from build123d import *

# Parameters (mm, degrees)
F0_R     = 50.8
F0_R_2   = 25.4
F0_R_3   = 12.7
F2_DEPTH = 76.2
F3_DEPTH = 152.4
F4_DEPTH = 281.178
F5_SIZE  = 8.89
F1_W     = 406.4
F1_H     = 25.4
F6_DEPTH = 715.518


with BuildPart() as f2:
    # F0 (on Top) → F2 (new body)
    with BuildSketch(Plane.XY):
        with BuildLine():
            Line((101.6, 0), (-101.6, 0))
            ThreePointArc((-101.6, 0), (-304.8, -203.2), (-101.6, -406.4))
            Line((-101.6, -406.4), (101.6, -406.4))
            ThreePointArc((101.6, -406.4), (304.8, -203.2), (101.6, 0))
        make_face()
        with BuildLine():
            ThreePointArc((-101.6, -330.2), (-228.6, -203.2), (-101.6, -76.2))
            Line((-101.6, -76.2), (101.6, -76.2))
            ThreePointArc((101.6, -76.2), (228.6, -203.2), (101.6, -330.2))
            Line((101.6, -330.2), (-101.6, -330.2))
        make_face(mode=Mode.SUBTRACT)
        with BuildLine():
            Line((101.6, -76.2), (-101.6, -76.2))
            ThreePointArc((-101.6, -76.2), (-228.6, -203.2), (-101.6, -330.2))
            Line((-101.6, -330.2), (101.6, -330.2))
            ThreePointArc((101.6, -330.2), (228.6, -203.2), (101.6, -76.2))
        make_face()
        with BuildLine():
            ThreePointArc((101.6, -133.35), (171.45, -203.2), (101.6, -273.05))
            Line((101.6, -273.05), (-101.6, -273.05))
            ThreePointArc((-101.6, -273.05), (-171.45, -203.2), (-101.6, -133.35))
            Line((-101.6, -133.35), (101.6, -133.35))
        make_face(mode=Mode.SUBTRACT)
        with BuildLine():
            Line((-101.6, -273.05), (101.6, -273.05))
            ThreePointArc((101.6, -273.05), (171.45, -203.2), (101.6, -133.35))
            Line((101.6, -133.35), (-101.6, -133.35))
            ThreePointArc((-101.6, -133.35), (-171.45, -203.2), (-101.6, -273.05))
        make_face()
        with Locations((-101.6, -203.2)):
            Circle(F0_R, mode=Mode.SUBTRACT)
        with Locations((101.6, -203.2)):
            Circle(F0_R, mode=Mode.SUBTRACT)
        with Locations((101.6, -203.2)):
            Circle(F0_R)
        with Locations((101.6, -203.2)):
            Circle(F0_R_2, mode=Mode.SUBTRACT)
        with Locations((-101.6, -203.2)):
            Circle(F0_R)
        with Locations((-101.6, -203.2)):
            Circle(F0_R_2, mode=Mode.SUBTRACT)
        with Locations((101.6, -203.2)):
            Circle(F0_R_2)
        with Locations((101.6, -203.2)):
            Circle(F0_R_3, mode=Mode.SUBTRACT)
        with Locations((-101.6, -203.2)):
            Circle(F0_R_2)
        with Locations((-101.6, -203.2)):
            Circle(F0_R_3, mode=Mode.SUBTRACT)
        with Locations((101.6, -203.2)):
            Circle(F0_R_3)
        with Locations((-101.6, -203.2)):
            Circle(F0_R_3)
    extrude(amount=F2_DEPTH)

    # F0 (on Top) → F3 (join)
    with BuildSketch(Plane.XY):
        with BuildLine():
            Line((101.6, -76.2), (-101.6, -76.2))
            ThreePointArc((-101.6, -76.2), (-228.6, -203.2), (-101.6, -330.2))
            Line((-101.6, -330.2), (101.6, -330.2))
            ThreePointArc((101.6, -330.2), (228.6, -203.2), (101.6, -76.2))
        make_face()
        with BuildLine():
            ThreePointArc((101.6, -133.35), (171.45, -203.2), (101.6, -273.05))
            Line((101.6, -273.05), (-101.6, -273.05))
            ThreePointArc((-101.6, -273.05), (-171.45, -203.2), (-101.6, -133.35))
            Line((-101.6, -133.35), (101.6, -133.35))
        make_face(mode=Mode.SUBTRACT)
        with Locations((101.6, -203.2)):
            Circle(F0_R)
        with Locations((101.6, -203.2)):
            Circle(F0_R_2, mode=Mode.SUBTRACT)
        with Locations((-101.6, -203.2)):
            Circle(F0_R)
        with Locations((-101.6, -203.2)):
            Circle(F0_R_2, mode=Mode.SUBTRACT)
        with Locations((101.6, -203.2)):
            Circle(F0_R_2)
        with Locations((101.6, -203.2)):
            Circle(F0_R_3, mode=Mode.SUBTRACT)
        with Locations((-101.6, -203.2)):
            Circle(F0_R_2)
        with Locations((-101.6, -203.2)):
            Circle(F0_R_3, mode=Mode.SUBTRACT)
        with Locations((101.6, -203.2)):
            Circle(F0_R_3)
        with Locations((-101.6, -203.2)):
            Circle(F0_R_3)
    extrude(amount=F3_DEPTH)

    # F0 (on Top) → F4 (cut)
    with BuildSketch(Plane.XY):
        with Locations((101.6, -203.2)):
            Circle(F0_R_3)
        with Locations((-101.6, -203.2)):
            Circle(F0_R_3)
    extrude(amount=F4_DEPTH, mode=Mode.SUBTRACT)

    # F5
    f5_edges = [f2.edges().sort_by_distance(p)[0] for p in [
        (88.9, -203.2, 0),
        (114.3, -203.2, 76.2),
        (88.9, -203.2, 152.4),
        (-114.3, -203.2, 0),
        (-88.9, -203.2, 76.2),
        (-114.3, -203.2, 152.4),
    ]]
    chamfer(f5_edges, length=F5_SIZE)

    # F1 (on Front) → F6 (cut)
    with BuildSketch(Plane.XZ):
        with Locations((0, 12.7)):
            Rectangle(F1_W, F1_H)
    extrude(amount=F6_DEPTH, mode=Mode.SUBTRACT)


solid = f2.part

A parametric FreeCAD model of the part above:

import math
import FreeCAD as App
import Part
import Sketcher

V = App.Vector
Q = App.Units.Quantity


def edges_at(feature, points):
    """Names of the edges that pass closest to the given points."""
    edges = feature.Shape.Edges
    near = lambda p: min(range(len(edges)), key=lambda i: edges[i].distToShape(Part.Vertex(*p))[0])
    return sorted({f"Edge{near(p) + 1}" for p in points})


def add_polygon(sketch, points):
    """Adds a closed chain of lines whose ends are joined by coincident constraints."""
    first, n = sketch.GeometryCount, len(points)
    for a, b in zip(points, points[1:] + points[:1]):
        sketch.addGeometry(Part.LineSegment(App.Vector(*a, 0), App.Vector(*b, 0)), False)
    for i in range(n):
        sketch.addConstraint(Sketcher.Constraint("Coincident", first + i, 2, first + (i + 1) % n, 1))

doc = App.newDocument("Part")
params = doc.addObject("Spreadsheet::Sheet", "Params")
for row, (alias, value) in enumerate([
    ("sketch1_radius", "8 in"),
    ("sketch1_width", "8 in"),
    ("pad1_length", "3 in"),
    ("sketch2_diameter", "4 in"),
    ("sketch2_radius", "5 in"),
    ("sketch2_width", "8 in"),
    ("sketch2_radius2", "2.75 in"),
    ("pad2_length", "6 in"),
    ("sketch3_diameter", "1 in"),
    ("pocket1_length", "11.07 in"),
    ("chamfer_size", "0.35 in"),
    ("sketch4_width", "16 in"),
    ("sketch4_height", "1 in"),
    ("pocket2_length", "28.17 in"),
], start=1):
    params.set(f"A{row}", alias)
    params.set(f"B{row}", "=" + value)
    params.setAlias(f"B{row}", alias)

body = doc.addObject("PartDesign::Body", "Body")

# Sketch on XY plane
sketch1 = doc.addObject("Sketcher::SketchObject", "Sketch")
body.addObject(sketch1)
sketch1.AttachmentSupport = (doc.XY_Plane, [""])
sketch1.MapMode = "FlatFace"
sketch1.addGeometry(Part.LineSegment(V(101.6, 0, 0), V(-101.6, 0, 0)), False)
sketch1.addGeometry(Part.ArcOfCircle(Part.Circle(V(-101.6, -203.2, 0), V(0, 0, 1), 203.2), math.radians(90), math.radians(270)), False)
sketch1.addGeometry(Part.LineSegment(V(-101.6, -406.4, 0), V(101.6, -406.4, 0)), False)
sketch1.addGeometry(Part.ArcOfCircle(Part.Circle(V(101.6, -203.2, 0), V(0, 0, 1), 203.2), math.radians(-90), math.radians(90)), False)
sketch1.addConstraint(Sketcher.Constraint("Tangent", 0, 2, 1, 1))
sketch1.addConstraint(Sketcher.Constraint("Tangent", 1, 2, 2, 1))
sketch1.addConstraint(Sketcher.Constraint("Tangent", 2, 2, 3, 1))
sketch1.addConstraint(Sketcher.Constraint("Tangent", 3, 2, 0, 1))
sketch1.addConstraint(Sketcher.Constraint("Horizontal", 0))
sketch1.addConstraint(Sketcher.Constraint("Horizontal", 2))
sketch1.addConstraint(Sketcher.Constraint("Symmetric", 0, 2, 3, 2, -1, 1))
sketch1.addConstraint(Sketcher.Constraint("Radius", 1, Q("8 in")))
sketch1.addConstraint(Sketcher.Constraint("DistanceX", 0, 2, 0, 1, Q("8 in")))
sketch1.setExpression("Constraints[7]", "Params.sketch1_radius")
sketch1.setExpression("Constraints[8]", "Params.sketch1_width")
pad1 = doc.addObject("PartDesign::Pad", "Pad")
body.addObject(pad1)
pad1.Profile = sketch1
pad1.setExpression("Length", "Params.pad1_length")

# Sketch on XY plane
sketch2 = doc.addObject("Sketcher::SketchObject", "Sketch001")
body.addObject(sketch2)
sketch2.AttachmentSupport = (doc.XY_Plane, [""])
sketch2.MapMode = "FlatFace"
sketch2.addGeometry(Part.LineSegment(V(101.6, -76.2, 0), V(-101.6, -76.2, 0)), False)
sketch2.addGeometry(Part.ArcOfCircle(Part.Circle(V(-101.6, -203.2, 0), V(0, 0, 1), 127), math.radians(90), math.radians(270)), False)
sketch2.addGeometry(Part.LineSegment(V(-101.6, -330.2, 0), V(101.6, -330.2, 0)), False)
sketch2.addGeometry(Part.ArcOfCircle(Part.Circle(V(101.6, -203.2, 0), V(0, 0, 1), 127), math.radians(-90), math.radians(90)), False)
sketch2.addGeometry(Part.LineSegment(V(-101.6, -133.35, 0), V(101.6, -133.35, 0)), False)
sketch2.addGeometry(Part.ArcOfCircle(Part.Circle(V(101.6, -203.2, 0), V(0, 0, 1), 69.85), math.radians(-90), math.radians(90)), False)
sketch2.addGeometry(Part.LineSegment(V(101.6, -273.05, 0), V(-101.6, -273.05, 0)), False)
sketch2.addGeometry(Part.ArcOfCircle(Part.Circle(V(-101.6, -203.2, 0), V(0, 0, 1), 69.85), math.radians(90), math.radians(270)), False)
sketch2.addGeometry(Part.Circle(V(101.6, -203.2, 0), V(0, 0, 1), 50.8), False)
sketch2.addGeometry(Part.Circle(V(-101.6, -203.2, 0), V(0, 0, 1), 50.8), False)
sketch2.addConstraint(Sketcher.Constraint("Tangent", 0, 2, 1, 1))
sketch2.addConstraint(Sketcher.Constraint("Tangent", 1, 2, 2, 1))
sketch2.addConstraint(Sketcher.Constraint("Tangent", 2, 2, 3, 1))
sketch2.addConstraint(Sketcher.Constraint("Tangent", 3, 2, 0, 1))
sketch2.addConstraint(Sketcher.Constraint("Tangent", 4, 2, 5, 2))
sketch2.addConstraint(Sketcher.Constraint("Tangent", 5, 1, 6, 1))
sketch2.addConstraint(Sketcher.Constraint("Tangent", 6, 2, 7, 2))
sketch2.addConstraint(Sketcher.Constraint("Tangent", 7, 1, 4, 1))
sketch2.addConstraint(Sketcher.Constraint("Horizontal", 0))
sketch2.addConstraint(Sketcher.Constraint("Horizontal", 2))
sketch2.addConstraint(Sketcher.Constraint("Horizontal", 4))
sketch2.addConstraint(Sketcher.Constraint("Horizontal", 6))
sketch2.addConstraint(Sketcher.Constraint("Coincident", 5, 3, 3, 3))
sketch2.addConstraint(Sketcher.Constraint("Coincident", 8, 3, 3, 3))
sketch2.addConstraint(Sketcher.Constraint("Coincident", 9, 3, 1, 3))
sketch2.addConstraint(Sketcher.Constraint("Equal", 8, 9))
sketch2.addConstraint(Sketcher.Constraint("Vertical", 1, 2, 6, 2))
sketch2.addConstraint(Sketcher.Constraint("Diameter", 8, Q("4 in")))
sketch2.addConstraint(Sketcher.Constraint("Radius", 1, Q("5 in")))
sketch2.addConstraint(Sketcher.Constraint("DistanceX", 0, 2, 0, 1, Q("8 in")))
sketch2.addConstraint(Sketcher.Constraint("Radius", 5, Q("2.75 in")))
sketch2.addConstraint(Sketcher.Constraint("DistanceX", 1, 3, -1, 1, Q("4 in")))
sketch2.addConstraint(Sketcher.Constraint("DistanceY", 1, 3, -1, 1, Q("8 in")))
sketch2.setExpression("Constraints[17]", "Params.sketch2_diameter")
sketch2.setExpression("Constraints[18]", "Params.sketch2_radius")
sketch2.setExpression("Constraints[19]", "Params.sketch2_width")
sketch2.setExpression("Constraints[20]", "Params.sketch2_radius2")
pad2 = doc.addObject("PartDesign::Pad", "Pad001")
body.addObject(pad2)
pad2.Profile = sketch2
pad2.setExpression("Length", "Params.pad2_length")

# Sketch on XY plane
sketch3 = doc.addObject("Sketcher::SketchObject", "Sketch002")
body.addObject(sketch3)
sketch3.AttachmentSupport = (doc.XY_Plane, [""])
sketch3.MapMode = "FlatFace"
sketch3.addGeometry(Part.Circle(V(101.6, -203.2, 0), V(0, 0, 1), 12.7), False)
sketch3.addGeometry(Part.Circle(V(-101.6, -203.2, 0), V(0, 0, 1), 12.7), False)
sketch3.addConstraint(Sketcher.Constraint("Equal", 0, 1))
sketch3.addConstraint(Sketcher.Constraint("Symmetric", 0, 3, 1, 3, -2))
sketch3.addConstraint(Sketcher.Constraint("Diameter", 0, Q("1 in")))
sketch3.addConstraint(Sketcher.Constraint("DistanceX", -1, 1, 0, 3, Q("4 in")))
sketch3.addConstraint(Sketcher.Constraint("DistanceY", 0, 3, -1, 1, Q("8 in")))
sketch3.setExpression("Constraints[2]", "Params.sketch3_diameter")
pocket1 = doc.addObject("PartDesign::Pocket", "Pocket")
body.addObject(pocket1)
pocket1.Profile = sketch3
pocket1.setExpression("Length", "Params.pocket1_length")
pocket1.Reversed = True
doc.recompute()

chamfer = doc.addObject("PartDesign::Chamfer", "Chamfer")
body.addObject(chamfer)
chamfer.Base = (pocket1, edges_at(pocket1, [
    (88.9, -203.2, 0),
    (114.3, -203.2, 76.2),
    (88.9, -203.2, 152.4),
    (-114.3, -203.2, 0),
    (-88.9, -203.2, 76.2),
    (-114.3, -203.2, 152.4),
]))
chamfer.setExpression("Size", "Params.chamfer_size")

# Sketch on XZ plane
sketch4 = doc.addObject("Sketcher::SketchObject", "Sketch003")
body.addObject(sketch4)
sketch4.AttachmentSupport = (doc.XZ_Plane, [""])
sketch4.MapMode = "FlatFace"
add_polygon(sketch4, [(-203.2, 25.4), (-203.2, 0), (203.2, 0), (203.2, 25.4)])  # lines 0-3
sketch4.addConstraint(Sketcher.Constraint("Vertical", 0))
sketch4.addConstraint(Sketcher.Constraint("Horizontal", 1))
sketch4.addConstraint(Sketcher.Constraint("Vertical", 2))
sketch4.addConstraint(Sketcher.Constraint("Horizontal", 3))
sketch4.addConstraint(Sketcher.Constraint("Symmetric", 0, 2, 1, 2, -1, 1))
sketch4.addConstraint(Sketcher.Constraint("DistanceX", 1, 1, 1, 2, Q("16 in")))
sketch4.addConstraint(Sketcher.Constraint("DistanceY", 0, 2, 0, 1, Q("1 in")))
sketch4.setExpression("Constraints[9]", "Params.sketch4_width")
sketch4.setExpression("Constraints[10]", "Params.sketch4_height")
pocket2 = doc.addObject("PartDesign::Pocket", "Pocket001")
body.addObject(pocket2)
pocket2.Profile = sketch4
pocket2.setExpression("Length", "Params.pocket2_length")
pocket2.Reversed = True

doc.recompute()
